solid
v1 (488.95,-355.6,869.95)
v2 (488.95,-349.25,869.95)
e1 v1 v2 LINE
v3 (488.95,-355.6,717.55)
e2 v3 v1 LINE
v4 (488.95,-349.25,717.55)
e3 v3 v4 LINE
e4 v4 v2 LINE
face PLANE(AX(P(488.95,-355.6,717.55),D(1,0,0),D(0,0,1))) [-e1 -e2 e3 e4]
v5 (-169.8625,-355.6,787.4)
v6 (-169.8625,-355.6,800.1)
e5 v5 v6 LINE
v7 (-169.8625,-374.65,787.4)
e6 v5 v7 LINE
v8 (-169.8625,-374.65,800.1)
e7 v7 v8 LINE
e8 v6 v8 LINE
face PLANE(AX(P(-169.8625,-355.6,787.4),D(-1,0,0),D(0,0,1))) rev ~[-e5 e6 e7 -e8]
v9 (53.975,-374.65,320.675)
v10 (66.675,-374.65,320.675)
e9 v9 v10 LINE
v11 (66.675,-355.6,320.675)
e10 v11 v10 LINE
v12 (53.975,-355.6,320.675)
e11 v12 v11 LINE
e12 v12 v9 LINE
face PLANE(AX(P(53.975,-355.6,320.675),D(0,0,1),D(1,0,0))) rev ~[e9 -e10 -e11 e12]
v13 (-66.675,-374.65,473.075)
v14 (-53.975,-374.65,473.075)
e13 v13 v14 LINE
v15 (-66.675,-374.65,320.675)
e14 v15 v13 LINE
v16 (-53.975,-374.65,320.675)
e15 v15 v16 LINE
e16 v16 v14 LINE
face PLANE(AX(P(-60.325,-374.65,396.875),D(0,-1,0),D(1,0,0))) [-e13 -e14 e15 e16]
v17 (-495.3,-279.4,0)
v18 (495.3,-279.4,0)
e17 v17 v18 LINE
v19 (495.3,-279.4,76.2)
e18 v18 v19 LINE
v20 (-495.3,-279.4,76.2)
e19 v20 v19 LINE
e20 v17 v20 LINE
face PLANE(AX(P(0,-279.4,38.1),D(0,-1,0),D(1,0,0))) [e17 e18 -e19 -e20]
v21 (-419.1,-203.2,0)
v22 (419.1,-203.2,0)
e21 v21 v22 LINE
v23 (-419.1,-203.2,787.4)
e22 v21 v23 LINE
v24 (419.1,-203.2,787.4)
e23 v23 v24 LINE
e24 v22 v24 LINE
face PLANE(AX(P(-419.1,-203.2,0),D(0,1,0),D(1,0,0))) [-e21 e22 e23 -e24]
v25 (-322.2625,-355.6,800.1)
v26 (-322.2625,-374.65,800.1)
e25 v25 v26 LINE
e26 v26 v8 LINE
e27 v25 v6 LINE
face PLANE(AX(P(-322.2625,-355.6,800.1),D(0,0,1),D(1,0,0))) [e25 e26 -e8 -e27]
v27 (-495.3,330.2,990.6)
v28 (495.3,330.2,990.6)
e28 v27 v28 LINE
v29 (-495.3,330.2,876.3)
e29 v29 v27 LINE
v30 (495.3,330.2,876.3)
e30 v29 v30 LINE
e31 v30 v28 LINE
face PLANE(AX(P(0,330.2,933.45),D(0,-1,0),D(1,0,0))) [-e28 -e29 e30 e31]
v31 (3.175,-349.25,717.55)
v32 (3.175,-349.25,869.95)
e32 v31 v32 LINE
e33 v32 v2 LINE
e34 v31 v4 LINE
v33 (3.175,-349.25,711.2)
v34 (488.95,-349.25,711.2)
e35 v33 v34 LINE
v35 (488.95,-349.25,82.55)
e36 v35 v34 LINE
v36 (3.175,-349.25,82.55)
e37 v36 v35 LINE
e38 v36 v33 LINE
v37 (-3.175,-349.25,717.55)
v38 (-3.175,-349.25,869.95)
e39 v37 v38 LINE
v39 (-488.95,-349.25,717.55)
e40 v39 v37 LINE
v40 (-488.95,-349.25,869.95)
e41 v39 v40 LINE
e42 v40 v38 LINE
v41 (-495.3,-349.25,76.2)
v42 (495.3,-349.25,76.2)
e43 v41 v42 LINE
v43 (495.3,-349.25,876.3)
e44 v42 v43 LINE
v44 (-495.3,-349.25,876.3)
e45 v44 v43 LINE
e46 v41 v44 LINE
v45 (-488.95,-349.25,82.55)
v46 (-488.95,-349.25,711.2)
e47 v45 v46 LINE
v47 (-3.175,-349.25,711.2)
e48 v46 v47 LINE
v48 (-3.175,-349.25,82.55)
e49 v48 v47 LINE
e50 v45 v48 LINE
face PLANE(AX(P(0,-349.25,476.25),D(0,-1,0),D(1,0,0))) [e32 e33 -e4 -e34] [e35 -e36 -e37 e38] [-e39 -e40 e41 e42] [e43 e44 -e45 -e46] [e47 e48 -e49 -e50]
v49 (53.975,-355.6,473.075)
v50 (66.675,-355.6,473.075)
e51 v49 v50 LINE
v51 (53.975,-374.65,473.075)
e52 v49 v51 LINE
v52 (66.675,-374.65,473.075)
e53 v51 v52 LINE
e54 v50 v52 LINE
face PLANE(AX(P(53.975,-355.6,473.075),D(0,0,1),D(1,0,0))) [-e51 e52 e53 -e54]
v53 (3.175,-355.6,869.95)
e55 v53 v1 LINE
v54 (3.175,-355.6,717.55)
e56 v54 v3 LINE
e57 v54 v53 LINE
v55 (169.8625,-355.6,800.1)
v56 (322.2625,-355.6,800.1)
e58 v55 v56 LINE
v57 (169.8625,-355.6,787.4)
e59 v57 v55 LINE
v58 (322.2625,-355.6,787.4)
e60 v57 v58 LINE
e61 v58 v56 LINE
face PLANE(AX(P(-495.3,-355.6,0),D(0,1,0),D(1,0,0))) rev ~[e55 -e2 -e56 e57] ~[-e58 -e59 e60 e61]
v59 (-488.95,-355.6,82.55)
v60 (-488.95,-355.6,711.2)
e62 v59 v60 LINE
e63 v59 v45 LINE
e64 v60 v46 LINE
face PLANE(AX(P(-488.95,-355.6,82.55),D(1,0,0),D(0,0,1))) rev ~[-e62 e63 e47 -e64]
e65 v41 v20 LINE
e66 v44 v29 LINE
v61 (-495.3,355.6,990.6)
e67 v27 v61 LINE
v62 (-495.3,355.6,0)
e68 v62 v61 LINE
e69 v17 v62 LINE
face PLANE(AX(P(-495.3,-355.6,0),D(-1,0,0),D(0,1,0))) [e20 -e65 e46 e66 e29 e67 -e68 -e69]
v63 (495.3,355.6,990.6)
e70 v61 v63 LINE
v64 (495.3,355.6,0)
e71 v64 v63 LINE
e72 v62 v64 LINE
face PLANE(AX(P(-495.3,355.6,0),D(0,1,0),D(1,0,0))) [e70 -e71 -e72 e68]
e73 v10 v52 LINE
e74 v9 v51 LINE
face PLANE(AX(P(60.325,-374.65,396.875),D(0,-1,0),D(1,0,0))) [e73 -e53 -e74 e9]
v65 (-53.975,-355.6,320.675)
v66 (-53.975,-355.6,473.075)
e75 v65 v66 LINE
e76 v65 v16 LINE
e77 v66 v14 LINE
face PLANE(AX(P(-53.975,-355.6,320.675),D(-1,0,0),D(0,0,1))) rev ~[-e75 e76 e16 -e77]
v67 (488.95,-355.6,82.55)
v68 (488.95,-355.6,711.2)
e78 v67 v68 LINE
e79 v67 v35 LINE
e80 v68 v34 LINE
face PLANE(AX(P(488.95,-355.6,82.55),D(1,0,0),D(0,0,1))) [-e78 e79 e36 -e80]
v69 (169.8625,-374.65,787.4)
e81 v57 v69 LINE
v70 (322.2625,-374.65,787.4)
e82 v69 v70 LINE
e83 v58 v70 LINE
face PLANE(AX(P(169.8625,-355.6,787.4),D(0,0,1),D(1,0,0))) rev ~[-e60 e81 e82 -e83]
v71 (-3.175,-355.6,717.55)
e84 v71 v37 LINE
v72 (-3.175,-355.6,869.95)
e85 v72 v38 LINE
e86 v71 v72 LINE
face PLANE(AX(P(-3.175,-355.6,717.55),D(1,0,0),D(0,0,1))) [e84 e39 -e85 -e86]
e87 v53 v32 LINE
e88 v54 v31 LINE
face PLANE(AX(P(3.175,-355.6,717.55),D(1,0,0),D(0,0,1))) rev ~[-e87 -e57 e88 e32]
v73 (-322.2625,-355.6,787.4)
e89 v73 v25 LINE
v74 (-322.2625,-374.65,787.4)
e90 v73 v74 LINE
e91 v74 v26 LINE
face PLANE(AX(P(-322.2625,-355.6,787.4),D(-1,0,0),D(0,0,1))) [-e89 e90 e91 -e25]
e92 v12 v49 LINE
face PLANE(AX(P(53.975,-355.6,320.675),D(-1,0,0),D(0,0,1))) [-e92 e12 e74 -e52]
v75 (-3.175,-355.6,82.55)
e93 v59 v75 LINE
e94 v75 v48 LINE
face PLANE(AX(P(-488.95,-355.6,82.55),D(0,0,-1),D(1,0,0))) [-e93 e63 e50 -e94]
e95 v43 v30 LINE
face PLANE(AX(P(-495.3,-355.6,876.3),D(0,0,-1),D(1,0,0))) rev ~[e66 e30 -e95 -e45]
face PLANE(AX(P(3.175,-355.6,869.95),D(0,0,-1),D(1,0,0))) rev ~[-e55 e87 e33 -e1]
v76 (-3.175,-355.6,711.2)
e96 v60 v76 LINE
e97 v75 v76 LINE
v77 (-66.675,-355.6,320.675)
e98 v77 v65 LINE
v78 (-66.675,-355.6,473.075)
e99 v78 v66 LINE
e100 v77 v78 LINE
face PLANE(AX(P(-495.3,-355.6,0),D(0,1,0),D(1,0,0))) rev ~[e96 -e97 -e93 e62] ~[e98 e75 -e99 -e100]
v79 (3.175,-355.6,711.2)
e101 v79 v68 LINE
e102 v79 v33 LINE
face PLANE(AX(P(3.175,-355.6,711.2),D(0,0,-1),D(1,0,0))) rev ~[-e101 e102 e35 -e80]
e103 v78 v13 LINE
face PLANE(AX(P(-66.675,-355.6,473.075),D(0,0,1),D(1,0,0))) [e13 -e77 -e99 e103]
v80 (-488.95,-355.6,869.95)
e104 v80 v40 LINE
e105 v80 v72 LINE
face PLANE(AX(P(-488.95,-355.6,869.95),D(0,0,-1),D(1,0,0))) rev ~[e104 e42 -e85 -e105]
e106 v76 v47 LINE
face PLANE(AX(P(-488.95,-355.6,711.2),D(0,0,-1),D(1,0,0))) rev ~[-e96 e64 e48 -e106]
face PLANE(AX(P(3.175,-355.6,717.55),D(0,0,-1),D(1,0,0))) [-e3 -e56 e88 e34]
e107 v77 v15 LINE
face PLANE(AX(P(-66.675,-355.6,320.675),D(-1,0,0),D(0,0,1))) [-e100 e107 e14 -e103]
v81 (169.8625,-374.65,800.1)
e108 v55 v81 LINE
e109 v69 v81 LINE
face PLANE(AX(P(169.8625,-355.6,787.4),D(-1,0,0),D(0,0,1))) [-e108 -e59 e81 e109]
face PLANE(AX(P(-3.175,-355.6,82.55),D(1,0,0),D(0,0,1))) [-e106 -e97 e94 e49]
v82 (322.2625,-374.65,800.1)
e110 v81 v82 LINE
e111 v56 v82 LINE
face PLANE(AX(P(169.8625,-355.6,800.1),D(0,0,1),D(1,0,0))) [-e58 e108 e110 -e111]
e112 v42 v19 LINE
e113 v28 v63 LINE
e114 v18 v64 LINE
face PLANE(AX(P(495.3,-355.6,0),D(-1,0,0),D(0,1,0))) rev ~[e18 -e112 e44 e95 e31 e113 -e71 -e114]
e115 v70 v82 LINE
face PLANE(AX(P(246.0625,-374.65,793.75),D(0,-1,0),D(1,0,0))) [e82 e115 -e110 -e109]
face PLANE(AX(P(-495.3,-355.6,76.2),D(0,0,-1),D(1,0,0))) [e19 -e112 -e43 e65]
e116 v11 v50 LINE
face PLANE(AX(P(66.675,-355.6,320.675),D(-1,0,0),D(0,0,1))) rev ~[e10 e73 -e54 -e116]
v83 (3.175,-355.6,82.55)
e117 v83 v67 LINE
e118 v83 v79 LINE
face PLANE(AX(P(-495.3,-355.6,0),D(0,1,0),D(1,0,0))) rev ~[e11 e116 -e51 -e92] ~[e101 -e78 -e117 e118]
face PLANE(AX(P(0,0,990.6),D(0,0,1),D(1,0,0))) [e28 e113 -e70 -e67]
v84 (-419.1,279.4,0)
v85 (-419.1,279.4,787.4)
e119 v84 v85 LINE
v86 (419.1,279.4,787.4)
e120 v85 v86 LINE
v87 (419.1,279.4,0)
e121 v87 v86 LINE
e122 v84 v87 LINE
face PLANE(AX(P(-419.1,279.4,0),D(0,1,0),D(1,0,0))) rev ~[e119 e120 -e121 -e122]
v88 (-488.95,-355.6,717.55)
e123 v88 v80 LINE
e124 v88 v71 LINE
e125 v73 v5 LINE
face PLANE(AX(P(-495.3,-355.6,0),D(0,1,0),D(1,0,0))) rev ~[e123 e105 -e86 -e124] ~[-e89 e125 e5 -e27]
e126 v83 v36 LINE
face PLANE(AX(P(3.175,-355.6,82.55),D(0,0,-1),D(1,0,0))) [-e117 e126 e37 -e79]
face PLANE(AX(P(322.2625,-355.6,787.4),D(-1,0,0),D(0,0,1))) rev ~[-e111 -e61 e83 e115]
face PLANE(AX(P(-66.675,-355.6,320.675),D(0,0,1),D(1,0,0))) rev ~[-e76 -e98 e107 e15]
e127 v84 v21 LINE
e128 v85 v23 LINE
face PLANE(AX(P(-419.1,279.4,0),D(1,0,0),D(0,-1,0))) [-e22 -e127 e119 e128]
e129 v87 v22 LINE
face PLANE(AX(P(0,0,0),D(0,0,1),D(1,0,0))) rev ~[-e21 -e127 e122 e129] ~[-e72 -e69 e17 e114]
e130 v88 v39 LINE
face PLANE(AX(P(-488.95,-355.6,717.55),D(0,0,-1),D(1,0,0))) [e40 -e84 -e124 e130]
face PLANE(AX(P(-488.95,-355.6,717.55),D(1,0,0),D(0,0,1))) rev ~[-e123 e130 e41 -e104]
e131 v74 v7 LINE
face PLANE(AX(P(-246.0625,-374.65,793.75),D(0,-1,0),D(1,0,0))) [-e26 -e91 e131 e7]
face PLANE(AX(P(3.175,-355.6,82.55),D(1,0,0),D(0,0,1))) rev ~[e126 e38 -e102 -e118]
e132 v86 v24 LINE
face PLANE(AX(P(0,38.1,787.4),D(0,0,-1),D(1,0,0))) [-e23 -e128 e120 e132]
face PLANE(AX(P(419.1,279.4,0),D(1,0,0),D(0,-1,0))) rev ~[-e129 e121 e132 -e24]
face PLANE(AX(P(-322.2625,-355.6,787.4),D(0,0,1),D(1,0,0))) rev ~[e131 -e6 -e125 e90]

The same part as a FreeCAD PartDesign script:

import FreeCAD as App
import Part
import Sketcher

V = App.Vector
Q = App.Units.Quantity

doc = App.newDocument("Part")
body = doc.addObject("PartDesign::Body", "Body")

# Sketch on XY plane
sketch1 = body.newObject("Sketcher::SketchObject", "Sketch")
sketch1.AttachmentSupport = (doc.getObject("XY_Plane"), [""])
sketch1.MapMode = "FlatFace"
sketch1.addGeometry([
    Part.LineSegment(V(-495, 356, 0), V(-495, -356, 0)),
    Part.LineSegment(V(-495, -356, 0), V(495, -356, 0)),
    Part.LineSegment(V(495, -356, 0), V(495, 356, 0)),
    Part.LineSegment(V(495, 356, 0), V(-495, 356, 0)),
], False)
sketch1.addConstraint([
    Sketcher.Constraint("Coincident", 0, 2, 1, 1),
    Sketcher.Constraint("Coincident", 1, 2, 2, 1),
    Sketcher.Constraint("Coincident", 2, 2, 3, 1),
    Sketcher.Constraint("Coincident", 3, 2, 0, 1),
    Sketcher.Constraint("Vertical", 0),
    Sketcher.Constraint("Horizontal", 1),
    Sketcher.Constraint("Vertical", 2),
    Sketcher.Constraint("Horizontal", 3),
    Sketcher.Constraint("Symmetric", 0, 2, 2, 2, -1, 1),
    Sketcher.Constraint("DistanceX", 1, 1, 1, 2, Q("39 in")),
    Sketcher.Constraint("DistanceY", 0, 2, 0, 1, Q("28 in")),
])
pad1 = body.newObject("PartDesign::Pad", "Pad")
pad1.Profile = sketch1
pad1.Length = Q("39 in")

# Sketch on XZ plane
sketch2 = body.newObject("Sketcher::SketchObject", "Sketch001")
sketch2.AttachmentSupport = (doc.getObject("XZ_Plane"), [""])
sketch2.MapMode = "FlatFace"
sketch2.AttachmentOffset = App.Placement(V(0, 0, 14 * 25.4), App.Rotation())
sketch2.addGeometry([
    Part.LineSegment(V(-495, 991, 0), V(-495, 876, 0)),
    Part.LineSegment(V(-495, 876, 0), V(495, 876, 0)),
    Part.LineSegment(V(495, 876, 0), V(495, 991, 0)),
    Part.LineSegment(V(495, 991, 0), V(-495, 991, 0)),
], False)
sketch2.addConstraint([
    Sketcher.Constraint("Coincident", 0, 2, 1, 1),
    Sketcher.Constraint("Coincident", 1, 2, 2, 1),
    Sketcher.Constraint("Coincident", 2, 2, 3, 1),
    Sketcher.Constraint("Coincident", 3, 2, 0, 1),
    Sketcher.Constraint("Vertical", 0),
    Sketcher.Constraint("Horizontal", 1),
    Sketcher.Constraint("Vertical", 2),
    Sketcher.Constraint("Horizontal", 3),
    Sketcher.Constraint("DistanceX", 1, 1, 1, 2, Q("39 in")),
    Sketcher.Constraint("DistanceY", 0, 2, 0, 1, Q("4.5 in")),
    Sketcher.Constraint("DistanceY", -1, 1, 2, 2, Q("39 in")),
    Sketcher.Constraint("DistanceX", 0, 2, -1, 1, Q("19.5 in")),
])
pocket1 = body.newObject("PartDesign::Pocket", "Pocket")
pocket1.Profile = sketch2
pocket1.Length = Q("27 in")

# Sketch on XZ plane
sketch3 = body.newObject("Sketcher::SketchObject", "Sketch002")
sketch3.AttachmentSupport = (doc.getObject("XZ_Plane"), [""])
sketch3.MapMode = "FlatFace"
sketch3.AttachmentOffset = App.Placement(V(0, 0, 14 * 25.4), App.Rotation())
sketch3.addGeometry([
    Part.LineSegment(V(-495, 876, 0), V(-495, 76, 0)),  # 0
    Part.LineSegment(V(-495, 76, 0), V(495, 76, 0)),  # 1
    Part.LineSegment(V(495, 76, 0), V(495, 876, 0)),  # 2
    Part.LineSegment(V(495, 876, 0), V(-495, 876, 0)),  # 3
    Part.LineSegment(V(-3, 83, 0), V(-489, 83, 0)),  # 4
    Part.LineSegment(V(-489, 83, 0), V(-489, 711, 0)),  # 5
    Part.LineSegment(V(-489, 711, 0), V(-3, 711, 0)),  # 6
    Part.LineSegment(V(-3, 711, 0), V(-3, 83, 0)),  # 7
    Part.LineSegment(V(489, 83, 0), V(3, 83, 0)),  # 8
    Part.LineSegment(V(3, 83, 0), V(3, 711, 0)),  # 9
    Part.LineSegment(V(3, 711, 0), V(489, 711, 0)),  # 10
    Part.LineSegment(V(489, 711, 0), V(489, 83, 0)),  # 11
    Part.LineSegment(V(-3, 718, 0), V(-489, 718, 0)),  # 12
    Part.LineSegment(V(-489, 718, 0), V(-489, 870, 0)),  # 13
    Part.LineSegment(V(-489, 870, 0), V(-3, 870, 0)),  # 14
    Part.LineSegment(V(-3, 870, 0), V(-3, 718, 0)),  # 15
    Part.LineSegment(V(489, 718, 0), V(3, 718, 0)),  # 16
    Part.LineSegment(V(3, 718, 0), V(3, 870, 0)),  # 17
    Part.LineSegment(V(3, 870, 0), V(489, 870, 0)),  # 18
    Part.LineSegment(V(489, 870, 0), V(489, 718, 0)),  # 19
], False)
sketch3.addConstraint([
    Sketcher.Constraint("Coincident", 0, 2, 1, 1),
    Sketcher.Constraint("Coincident", 1, 2, 2, 1),
    Sketcher.Constraint("Coincident", 2, 2, 3, 1),
    Sketcher.Constraint("Coincident", 3, 2, 0, 1),
    Sketcher.Constraint("Coincident", 4, 2, 5, 1),
    Sketcher.Constraint("Coincident", 5, 2, 6, 1),
    Sketcher.Constraint("Coincident", 6, 2, 7, 1),
    Sketcher.Constraint("Coincident", 7, 2, 4, 1),
    Sketcher.Constraint("Coincident", 8, 2, 9, 1),
    Sketcher.Constraint("Coincident", 9, 2, 10, 1),
    Sketcher.Constraint("Coincident", 10, 2, 11, 1),
    Sketcher.Constraint("Coincident", 11, 2, 8, 1),
    Sketcher.Constraint("Coincident", 12, 2, 13, 1),
    Sketcher.Constraint("Coincident", 13, 2, 14, 1),
    Sketcher.Constraint("Coincident", 14, 2, 15, 1),
    Sketcher.Constraint("Coincident", 15, 2, 12, 1),
    Sketcher.Constraint("Coincident", 16, 2, 17, 1),
    Sketcher.Constraint("Coincident", 17, 2, 18, 1),
    Sketcher.Constraint("Coincident", 18, 2, 19, 1),
    Sketcher.Constraint("Coincident", 19, 2, 16, 1),
    Sketcher.Constraint("Vertical", 0),
    Sketcher.Constraint("Horizontal", 1),
    Sketcher.Constraint("Vertical", 2),
    Sketcher.Constraint("Horizontal", 3),
    Sketcher.Constraint("Horizontal", 4),
    Sketcher.Constraint("Vertical", 5),
    Sketcher.Constraint("Horizontal", 6),
    Sketcher.Constraint("Vertical", 7),
    Sketcher.Constraint("Horizontal", 8),
    Sketcher.Constraint("Vertical", 9),
    Sketcher.Constraint("Horizontal", 10),
    Sketcher.Constraint("Vertical", 11),
    Sketcher.Constraint("Horizontal", 12),
    Sketcher.Constraint("Vertical", 13),
    Sketcher.Constraint("Horizontal", 14),
    Sketcher.Constraint("Vertical", 15),
    Sketcher.Constraint("Horizontal", 16),
    Sketcher.Constraint("Vertical", 17),
    Sketcher.Constraint("Horizontal", 18),
    Sketcher.Constraint("Vertical", 19),
    Sketcher.Constraint("Symmetric", 7, 2, 8, 2, -2),
    Sketcher.Constraint("Symmetric", 5, 2, 10, 2, -2),
    Sketcher.Constraint("Symmetric", 15, 2, 16, 2, -2),
    Sketcher.Constraint("Symmetric", 13, 2, 18, 2, -2),
    Sketcher.Constraint("Vertical", 5, 2, 12, 2),
    Sketcher.Constraint("Vertical", 7, 2, 14, 2),
    Sketcher.Constraint("DistanceX", 1, 1, 1, 2, Q("39 in")),
    Sketcher.Constraint("DistanceY", 13, 1, 13, 2, Q("6 in")),
    Sketcher.Constraint("DistanceY", 0, 2, 0, 1, Q("31.5 in")),
    Sketcher.Constraint("DistanceY", -1, 1, 0, 2, Q("3 in")),
    Sketcher.Constraint("DistanceY", -1, 1, 5, 2, Q("28 in")),
    Sketcher.Constraint("DistanceY", 4, 2, 12, 2, Q("25 in")),
    Sketcher.Constraint("DistanceY", 5, 1, 5, 2, Q("24.75 in")),
    Sketcher.Constraint("DistanceX", 0, 2, -1, 1, Q("19.5 in")),
    Sketcher.Constraint("DistanceX", 4, 2, 4, 1, Q("19.125 in")),
    Sketcher.Constraint("DistanceX", 4, 2, -1, 1, Q("19.25 in")),
])
pocket2 = body.newObject("PartDesign::Pocket", "Pocket001")
pocket2.Profile = sketch3
pocket2.Length = Q("0.25 in")

# Sketch on XZ plane
sketch4 = body.newObject("Sketcher::SketchObject", "Sketch003")
sketch4.AttachmentSupport = (doc.getObject("XZ_Plane"), [""])
sketch4.MapMode = "FlatFace"
sketch4.AttachmentOffset = App.Placement(V(0, 0, 14 * 25.4), App.Rotation())
sketch4.addGeometry([
    Part.LineSegment(V(-495, 76, 0), V(-495, 0, 0)),
    Part.LineSegment(V(-495, 0, 0), V(495, 0, 0)),
    Part.LineSegment(V(495, 0, 0), V(495, 76, 0)),
    Part.LineSegment(V(495, 76, 0), V(-495, 76, 0)),
], False)
sketch4.addConstraint([
    Sketcher.Constraint("Coincident", 0, 2, 1, 1),
    Sketcher.Constraint("Coincident", 1, 2, 2, 1),
    Sketcher.Constraint("Coincident", 2, 2, 3, 1),
    Sketcher.Constraint("Coincident", 3, 2, 0, 1),
    Sketcher.Constraint("Vertical", 0),
    Sketcher.Constraint("Horizontal", 1),
    Sketcher.Constraint("Vertical", 2),
    Sketcher.Constraint("Horizontal", 3),
    Sketcher.Constraint("Symmetric", 0, 2, 1, 2, -1, 1),
    Sketcher.Constraint("DistanceX", 1, 1, 1, 2, Q("39 in")),
    Sketcher.Constraint("DistanceY", 0, 2, 0, 1, Q("3 in")),
])
pocket3 = body.newObject("PartDesign::Pocket", "Pocket002")
pocket3.Profile = sketch4
pocket3.Length = Q("3 in")

# Sketch on XZ plane
sketch5 = body.newObject("Sketcher::SketchObject", "Sketch004")
sketch5.AttachmentSupport = (doc.getObject("XZ_Plane"), [""])
sketch5.MapMode = "FlatFace"
sketch5.AttachmentOffset = App.Placement(V(0, 0, 14 * 25.4), App.Rotation())
sketch5.addGeometry([
    Part.LineSegment(V(-322, 800, 0), V(-322, 787, 0)),  # 0
    Part.LineSegment(V(-322, 787, 0), V(-170, 787, 0)),  # 1
    Part.LineSegment(V(-170, 787, 0), V(-170, 800, 0)),  # 2
    Part.LineSegment(V(-170, 800, 0), V(-322, 800, 0)),  # 3
    Part.LineSegment(V(170, 800, 0), V(170, 787, 0)),  # 4
    Part.LineSegment(V(170, 787, 0), V(322, 787, 0)),  # 5
    Part.LineSegment(V(322, 787, 0), V(322, 800, 0)),  # 6
    Part.LineSegment(V(322, 800, 0), V(170, 800, 0)),  # 7
    Part.LineSegment(V(54, 473, 0), V(54, 321, 0)),  # 8
    Part.LineSegment(V(54, 321, 0), V(67, 321, 0)),  # 9
    Part.LineSegment(V(67, 321, 0), V(67, 473, 0)),  # 10
    Part.LineSegment(V(67, 473, 0), V(54, 473, 0)),  # 11
    Part.LineSegment(V(-67, 473, 0), V(-67, 321, 0)),  # 12
    Part.LineSegment(V(-67, 321, 0), V(-54, 321, 0)),  # 13
    Part.LineSegment(V(-54, 321, 0), V(-54, 473, 0)),  # 14
    Part.LineSegment(V(-54, 473, 0), V(-67, 473, 0)),  # 15
], False)
sketch5.addConstraint([
    Sketcher.Constraint("Coincident", 0, 2, 1, 1),
    Sketcher.Constraint("Coincident", 1, 2, 2, 1),
    Sketcher.Constraint("Coincident", 2, 2, 3, 1),
    Sketcher.Constraint("Coincident", 3, 2, 0, 1),
    Sketcher.Constraint("Coincident", 4, 2, 5, 1),
    Sketcher.Constraint("Coincident", 5, 2, 6, 1),
    Sketcher.Constraint("Coincident", 6, 2, 7, 1),
    Sketcher.Constraint("Coincident", 7, 2, 4, 1),
    Sketcher.Constraint("Coincident", 8, 2, 9, 1),
    Sketcher.Constraint("Coincident", 9, 2, 10, 1),
    Sketcher.Constraint("Coincident", 10, 2, 11, 1),
    Sketcher.Constraint("Coincident", 11, 2, 8, 1),
    Sketcher.Constraint("Coincident", 12, 2, 13, 1),
    Sketcher.Constraint("Coincident", 13, 2, 14, 1),
    Sketcher.Constraint("Coincident", 14, 2, 15, 1),
    Sketcher.Constraint("Coincident", 15, 2, 12, 1),
    Sketcher.Constraint("Vertical", 0),
    Sketcher.Constraint("Horizontal", 1),
    Sketcher.Constraint("Vertical", 2),
    Sketcher.Constraint("Horizontal", 3),
    Sketcher.Constraint("Vertical", 4),
    Sketcher.Constraint("Horizontal", 5),
    Sketcher.Constraint("Vertical", 6),
    Sketcher.Constraint("Horizontal", 7),
    Sketcher.Constraint("Vertical", 8),
    Sketcher.Constraint("Horizontal", 9),
    Sketcher.Constraint("Vertical", 10),
    Sketcher.Constraint("Horizontal", 11),
    Sketcher.Constraint("Vertical", 12),
    Sketcher.Constraint("Horizontal", 13),
    Sketcher.Constraint("Vertical", 14),
    Sketcher.Constraint("Horizontal", 15),
    Sketcher.Constraint("Symmetric", 1, 2, 4, 2, -2),
    Sketcher.Constraint("Symmetric", 3, 2, 6, 2, -2),
    Sketcher.Constraint("Symmetric", 9, 2, 12, 2, -2),
    Sketcher.Constraint("Symmetric", 11, 2, 14, 2, -2),
    Sketcher.Constraint("Equal", 15, 0),
    Sketcher.Constraint("Equal", 7, 8),
    Sketcher.Constraint("DistanceX", 1, 1, 1, 2, Q("6 in")),
    Sketcher.Constraint("DistanceX", 9, 1, 9, 2, Q("0.5 in")),
    Sketcher.Constraint("DistanceY", -1, 1, 0, 2, Q("31 in")),
    Sketcher.Constraint("DistanceX", 12, 2, 8, 2, Q("4.75 in")),
    Sketcher.Constraint("DistanceX", 0, 2, -1, 1, Q("12.6875 in")),
    Sketcher.Constraint("DistanceY", -1, 1, 8, 2, Q("12.625 in")),
])
pad2 = body.newObject("PartDesign::Pad", "Pad001")
pad2.Profile = sketch5
pad2.Length = Q("0.75 in")

# Sketch on XY plane
sketch6 = body.newObject("Sketcher::SketchObject", "Sketch005")
sketch6.AttachmentSupport = (doc.getObject("XY_Plane"), [""])
sketch6.MapMode = "FlatFace"
sketch6.addGeometry([
    Part.LineSegment(V(-419, -203, 0), V(-419, 279, 0)),
    Part.LineSegment(V(-419, 279, 0), V(419, 279, 0)),
    Part.LineSegment(V(419, 279, 0), V(419, -203, 0)),
    Part.LineSegment(V(419, -203, 0), V(-419, -203, 0)),
], False)
sketch6.addConstraint([
    Sketcher.Constraint("Coincident", 0, 2, 1, 1),
    Sketcher.Constraint("Coincident", 1, 2, 2, 1),
    Sketcher.Constraint("Coincident", 2, 2, 3, 1),
    Sketcher.Constraint("Coincident", 3, 2, 0, 1),
    Sketcher.Constraint("Vertical", 0),
    Sketcher.Constraint("Horizontal", 1),
    Sketcher.Constraint("Vertical", 2),
    Sketcher.Constraint("Horizontal", 3),
    Sketcher.Constraint("DistanceX", 1, 1, 1, 2, Q("33 in")),
    Sketcher.Constraint("DistanceY", 0, 1, 0, 2, Q("19 in")),
    Sketcher.Constraint("DistanceY", -1, 1, 0, 2, Q("11 in")),
    Sketcher.Constraint("DistanceX", 0, 2, -1, 1, Q("16.5 in")),
])
pocket4 = body.newObject("PartDesign::Pocket", "Pocket003")
pocket4.Profile = sketch6
pocket4.Length = Q("31 in")
pocket4.Reversed = True

doc.recompute()
